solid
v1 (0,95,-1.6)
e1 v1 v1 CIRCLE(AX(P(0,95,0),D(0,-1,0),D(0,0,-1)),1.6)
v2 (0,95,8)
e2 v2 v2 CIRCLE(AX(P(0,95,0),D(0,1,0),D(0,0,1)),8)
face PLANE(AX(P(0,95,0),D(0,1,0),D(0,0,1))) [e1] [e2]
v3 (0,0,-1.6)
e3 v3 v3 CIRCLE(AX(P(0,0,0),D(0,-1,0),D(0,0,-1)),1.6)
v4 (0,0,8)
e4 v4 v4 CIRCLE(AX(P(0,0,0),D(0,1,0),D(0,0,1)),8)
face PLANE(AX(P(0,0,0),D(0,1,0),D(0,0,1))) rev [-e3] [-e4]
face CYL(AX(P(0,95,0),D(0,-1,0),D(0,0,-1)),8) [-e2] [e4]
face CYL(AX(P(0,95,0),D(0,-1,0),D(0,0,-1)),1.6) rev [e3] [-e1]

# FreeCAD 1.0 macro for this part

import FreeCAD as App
import Part
import Sketcher
Q = App.Units.Quantity

doc = App.newDocument("Part")
params = doc.addObject("Spreadsheet::Sheet", "Params")
for row, (alias, value) in enumerate([
    ("sketch1_diameter", "16 mm"),
    ("pad1_length", "95 mm"),
    ("sketch2_diameter", "3.2 mm"),
    ("pocket1_length", "95 mm"),
], start=1):
    params.set(f"A{row}", alias)
    params.set(f"B{row}", "=" + value)
    params.setAlias(f"B{row}", alias)

body = doc.addObject("PartDesign::Body", "Body")

# Sketch on XZ plane
sketch1 = body.newObject("Sketcher::SketchObject", "Sketch")
sketch1.AttachmentSupport = (doc.getObject("XZ_Plane"), [""])
sketch1.MapMode = "FlatFace"
sketch1.addGeometry(Part.Circle(App.Vector(0, 0, 0), App.Vector(0, 0, 1), 8), False)
sketch1.addConstraint(Sketcher.Constraint("Coincident", 0, 3, -1, 1))
sketch1.addConstraint(Sketcher.Constraint("Diameter", 0, Q("16 mm")))
sketch1.setExpression("Constraints[1]", "Params.sketch1_diameter")
pad1 = body.newObject("PartDesign::Pad", "Pad")
pad1.Profile = sketch1
pad1.setExpression("Length", "Params.pad1_length")
pad1.Reversed = True

# Sketch on XZ plane
sketch2 = body.newObject("Sketcher::SketchObject", "Sketch001")
sketch2.AttachmentSupport = (doc.getObject("XZ_Plane"), [""])
sketch2.MapMode = "FlatFace"
sketch2.addGeometry(Part.Circle(App.Vector(0, 0, 0), App.Vector(0, 0, 1), 1.6), False)
sketch2.addConstraint(Sketcher.Constraint("Coincident", 0, 3, -1, 1))
sketch2.addConstraint(Sketcher.Constraint("Diameter", 0, Q("3.2 mm")))
sketch2.setExpression("Constraints[1]", "Params.sketch2_diameter")
pocket1 = body.newObject("PartDesign::Pocket", "Pocket")
pocket1.Profile = sketch2
pocket1.setExpression("Length", "Params.pocket1_length")

doc.recompute()
